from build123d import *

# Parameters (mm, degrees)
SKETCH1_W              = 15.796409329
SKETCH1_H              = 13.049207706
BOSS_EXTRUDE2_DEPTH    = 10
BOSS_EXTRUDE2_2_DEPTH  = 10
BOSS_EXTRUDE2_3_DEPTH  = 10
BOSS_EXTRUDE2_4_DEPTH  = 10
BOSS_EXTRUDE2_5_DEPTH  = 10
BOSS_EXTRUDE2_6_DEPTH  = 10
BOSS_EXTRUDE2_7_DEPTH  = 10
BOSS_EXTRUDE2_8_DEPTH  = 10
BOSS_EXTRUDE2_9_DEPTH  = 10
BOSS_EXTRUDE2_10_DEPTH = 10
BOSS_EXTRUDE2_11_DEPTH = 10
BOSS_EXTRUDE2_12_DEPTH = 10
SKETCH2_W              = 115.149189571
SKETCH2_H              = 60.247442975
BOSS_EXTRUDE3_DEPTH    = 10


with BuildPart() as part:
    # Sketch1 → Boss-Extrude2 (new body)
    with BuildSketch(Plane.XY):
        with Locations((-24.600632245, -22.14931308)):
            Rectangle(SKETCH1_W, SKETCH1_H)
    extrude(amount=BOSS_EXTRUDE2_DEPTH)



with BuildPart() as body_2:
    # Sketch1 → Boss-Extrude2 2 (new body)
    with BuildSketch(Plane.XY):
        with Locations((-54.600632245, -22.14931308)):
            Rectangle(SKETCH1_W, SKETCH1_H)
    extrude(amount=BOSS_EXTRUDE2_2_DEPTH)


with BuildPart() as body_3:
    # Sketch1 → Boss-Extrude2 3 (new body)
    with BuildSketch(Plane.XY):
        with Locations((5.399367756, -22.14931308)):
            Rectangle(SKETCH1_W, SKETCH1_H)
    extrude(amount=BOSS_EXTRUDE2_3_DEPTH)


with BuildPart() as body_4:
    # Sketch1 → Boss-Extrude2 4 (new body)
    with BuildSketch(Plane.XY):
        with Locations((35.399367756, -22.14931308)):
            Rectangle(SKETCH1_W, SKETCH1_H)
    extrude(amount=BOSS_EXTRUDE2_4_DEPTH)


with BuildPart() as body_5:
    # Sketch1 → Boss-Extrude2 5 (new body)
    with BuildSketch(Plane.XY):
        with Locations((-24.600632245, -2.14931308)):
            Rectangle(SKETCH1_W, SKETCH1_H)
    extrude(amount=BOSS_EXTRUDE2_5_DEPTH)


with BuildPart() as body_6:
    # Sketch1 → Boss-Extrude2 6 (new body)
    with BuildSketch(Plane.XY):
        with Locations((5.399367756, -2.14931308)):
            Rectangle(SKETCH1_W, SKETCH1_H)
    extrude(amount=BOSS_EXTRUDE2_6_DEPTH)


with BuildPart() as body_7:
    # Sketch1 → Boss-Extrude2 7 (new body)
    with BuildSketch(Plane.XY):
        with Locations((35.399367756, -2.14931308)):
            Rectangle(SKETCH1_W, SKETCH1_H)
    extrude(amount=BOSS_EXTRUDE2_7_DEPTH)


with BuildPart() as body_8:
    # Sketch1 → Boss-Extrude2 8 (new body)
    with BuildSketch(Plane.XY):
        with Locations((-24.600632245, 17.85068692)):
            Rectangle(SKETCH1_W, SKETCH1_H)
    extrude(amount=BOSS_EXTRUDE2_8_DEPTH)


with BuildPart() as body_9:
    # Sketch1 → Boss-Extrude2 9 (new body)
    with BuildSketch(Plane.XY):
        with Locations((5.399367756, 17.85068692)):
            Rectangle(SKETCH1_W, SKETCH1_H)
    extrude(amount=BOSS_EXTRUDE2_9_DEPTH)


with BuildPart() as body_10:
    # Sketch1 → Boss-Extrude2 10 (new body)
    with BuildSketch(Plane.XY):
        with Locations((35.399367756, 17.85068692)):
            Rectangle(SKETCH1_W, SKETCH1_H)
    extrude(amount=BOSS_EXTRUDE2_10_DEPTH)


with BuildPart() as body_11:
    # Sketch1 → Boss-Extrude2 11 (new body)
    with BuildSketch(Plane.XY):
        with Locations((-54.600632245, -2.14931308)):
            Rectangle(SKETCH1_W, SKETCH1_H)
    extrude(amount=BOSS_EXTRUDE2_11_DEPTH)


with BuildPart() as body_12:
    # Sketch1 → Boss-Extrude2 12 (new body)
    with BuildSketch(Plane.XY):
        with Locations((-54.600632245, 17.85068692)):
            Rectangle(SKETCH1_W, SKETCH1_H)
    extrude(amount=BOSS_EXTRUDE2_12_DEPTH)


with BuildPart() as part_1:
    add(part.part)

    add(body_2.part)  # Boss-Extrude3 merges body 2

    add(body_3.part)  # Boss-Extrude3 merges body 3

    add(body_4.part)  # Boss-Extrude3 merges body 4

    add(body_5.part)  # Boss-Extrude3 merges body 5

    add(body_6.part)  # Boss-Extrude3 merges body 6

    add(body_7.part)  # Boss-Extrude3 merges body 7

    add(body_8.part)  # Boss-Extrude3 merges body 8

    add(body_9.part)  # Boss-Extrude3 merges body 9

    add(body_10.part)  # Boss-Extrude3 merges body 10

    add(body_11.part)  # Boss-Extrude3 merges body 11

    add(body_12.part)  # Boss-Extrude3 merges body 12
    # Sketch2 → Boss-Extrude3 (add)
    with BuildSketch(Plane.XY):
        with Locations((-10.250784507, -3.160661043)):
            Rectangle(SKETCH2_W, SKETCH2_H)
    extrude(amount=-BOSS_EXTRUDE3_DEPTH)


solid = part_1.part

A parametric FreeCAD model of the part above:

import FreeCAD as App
import Part
import Sketcher
from FreeCAD import Vector


def add_polygon(sketch, points):
    """Adds a closed chain of lines whose ends are joined by coincident constraints."""
    first, n = sketch.GeometryCount, len(points)
    for a, b in zip(points, points[1:] + points[:1]):
        sketch.addGeometry(Part.LineSegment(App.Vector(*a, 0), App.Vector(*b, 0)), False)
    for i in range(n):
        sketch.addConstraint(Sketcher.Constraint("Coincident", first + i, 2, first + (i + 1) % n, 1))

doc = App.newDocument("Part")
body = doc.addObject("PartDesign::Body", "Body")

sketch1 = body.newObject("Sketcher::SketchObject", "Sketch")
sketch1.AttachmentSupport = (doc.getObject("XY_Plane"), [""])
sketch1.MapMode = "FlatFace"
add_polygon(sketch1, [(-32.498837, -15.624709), (-32.498837, -28.673917), (-16.702428, -28.673917), (-16.702428, -15.624709)])
sketch1.addConstraint([
    Sketcher.Constraint("Vertical", 0),
    Sketcher.Constraint("Horizontal", 1),
    Sketcher.Constraint("Vertical", 2),
    Sketcher.Constraint("Horizontal", 3),
    Sketcher.Constraint("DistanceX", 1, 1, 1, 2, 15.796409),
    Sketcher.Constraint("DistanceY", 0, 2, 0, 1, 13.049208),
    Sketcher.Constraint("DistanceY", 2, 2, -1, 1, 15.624709),
    Sketcher.Constraint("DistanceX", 0, 2, -1, 1, 32.498837),
])
pad1 = body.newObject("PartDesign::Pad", "Pad")
pad1.Profile = sketch1
pad1.Length = 10
body2 = doc.addObject("PartDesign::Body", "Body001")

sketch2 = body2.newObject("Sketcher::SketchObject", "Sketch001")
sketch2.AttachmentSupport = (doc.getObject("XY_Plane001"), [""])
sketch2.MapMode = "FlatFace"
add_polygon(sketch2, [(-62.498837, -15.624709), (-62.498837, -28.673917), (-46.702428, -28.673917), (-46.702428, -15.624709)])
sketch2.addConstraint([
    Sketcher.Constraint("Vertical", 0),
    Sketcher.Constraint("Horizontal", 1),
    Sketcher.Constraint("Vertical", 2),
    Sketcher.Constraint("Horizontal", 3),
    Sketcher.Constraint("DistanceX", 1, 1, 1, 2, 15.796409),
    Sketcher.Constraint("DistanceY", 0, 2, 0, 1, 13.049208),
    Sketcher.Constraint("DistanceY", 2, 2, -1, 1, 15.624709),
    Sketcher.Constraint("DistanceX", 0, 2, -1, 1, 62.498837),
])
pad2 = body2.newObject("PartDesign::Pad", "Pad001")
pad2.Profile = sketch2
pad2.Length = 10
body3 = doc.addObject("PartDesign::Body", "Body002")

sketch3 = body3.newObject("Sketcher::SketchObject", "Sketch002")
sketch3.AttachmentSupport = (doc.getObject("XY_Plane002"), [""])
sketch3.MapMode = "FlatFace"
add_polygon(sketch3, [(-2.498837, -15.624709), (-2.498837, -28.673917), (13.297572, -28.673917), (13.297572, -15.624709)])
sketch3.addConstraint([
    Sketcher.Constraint("Vertical", 0),
    Sketcher.Constraint("Horizontal", 1),
    Sketcher.Constraint("Vertical", 2),
    Sketcher.Constraint("Horizontal", 3),
    Sketcher.Constraint("DistanceX", 1, 1, 1, 2, 15.796409),
    Sketcher.Constraint("DistanceY", 0, 2, 0, 1, 13.049208),
    Sketcher.Constraint("DistanceY", 2, 2, -1, 1, 15.624709),
    Sketcher.Constraint("DistanceX", 0, 2, -1, 1, 2.498837),
])
pad3 = body3.newObject("PartDesign::Pad", "Pad002")
pad3.Profile = sketch3
pad3.Length = 10
body4 = doc.addObject("PartDesign::Body", "Body003")

sketch4 = body4.newObject("Sketcher::SketchObject", "Sketch003")
sketch4.AttachmentSupport = (doc.getObject("XY_Plane003"), [""])
sketch4.MapMode = "FlatFace"
add_polygon(sketch4, [(27.501163, -15.624709), (27.501163, -28.673917), (43.297572, -28.673917), (43.297572, -15.624709)])
sketch4.addConstraint([
    Sketcher.Constraint("Vertical", 0),
    Sketcher.Constraint("Horizontal", 1),
    Sketcher.Constraint("Vertical", 2),
    Sketcher.Constraint("Horizontal", 3),
    Sketcher.Constraint("DistanceX", 1, 1, 1, 2, 15.796409),
    Sketcher.Constraint("DistanceY", 0, 2, 0, 1, 13.049208),
    Sketcher.Constraint("DistanceY", 2, 2, -1, 1, 15.624709),
    Sketcher.Constraint("DistanceX", -1, 1, 0, 2, 27.501163),
])
pad4 = body4.newObject("PartDesign::Pad", "Pad003")
pad4.Profile = sketch4
pad4.Length = 10
body5 = doc.addObject("PartDesign::Body", "Body004")

sketch5 = body5.newObject("Sketcher::SketchObject", "Sketch004")
sketch5.AttachmentSupport = (doc.getObject("XY_Plane004"), [""])
sketch5.MapMode = "FlatFace"
add_polygon(sketch5, [(-32.498837, 4.375291), (-32.498837, -8.673917), (-16.702428, -8.673917), (-16.702428, 4.375291)])
sketch5.addConstraint([
    Sketcher.Constraint("Vertical", 0),
    Sketcher.Constraint("Horizontal", 1),
    Sketcher.Constraint("Vertical", 2),
    Sketcher.Constraint("Horizontal", 3),
    Sketcher.Constraint("DistanceX", 1, 1, 1, 2, 15.796409),
    Sketcher.Constraint("DistanceY", 0, 2, 0, 1, 13.049208),
    Sketcher.Constraint("DistanceY", -1, 1, 2, 2, 4.375291),
    Sketcher.Constraint("DistanceX", 0, 2, -1, 1, 32.498837),
])
pad5 = body5.newObject("PartDesign::Pad", "Pad004")
pad5.Profile = sketch5
pad5.Length = 10
body6 = doc.addObject("PartDesign::Body", "Body005")

sketch6 = body6.newObject("Sketcher::SketchObject", "Sketch005")
sketch6.AttachmentSupport = (doc.getObject("XY_Plane005"), [""])
sketch6.MapMode = "FlatFace"
add_polygon(sketch6, [(-2.498837, 4.375291), (-2.498837, -8.673917), (13.297572, -8.673917), (13.297572, 4.375291)])
sketch6.addConstraint([
    Sketcher.Constraint("Vertical", 0),
    Sketcher.Constraint("Horizontal", 1),
    Sketcher.Constraint("Vertical", 2),
    Sketcher.Constraint("Horizontal", 3),
    Sketcher.Constraint("DistanceX", 1, 1, 1, 2, 15.796409),
    Sketcher.Constraint("DistanceY", 0, 2, 0, 1, 13.049208),
    Sketcher.Constraint("DistanceY", -1, 1, 2, 2, 4.375291),
    Sketcher.Constraint("DistanceX", 0, 2, -1, 1, 2.498837),
])
pad6 = body6.newObject("PartDesign::Pad", "Pad005")
pad6.Profile = sketch6
pad6.Length = 10
body7 = doc.addObject("PartDesign::Body", "Body006")

sketch7 = body7.newObject("Sketcher::SketchObject", "Sketch006")
sketch7.AttachmentSupport = (doc.getObject("XY_Plane006"), [""])
sketch7.MapMode = "FlatFace"
add_polygon(sketch7, [(27.501163, 4.375291), (27.501163, -8.673917), (43.297572, -8.673917), (43.297572, 4.375291)])
sketch7.addConstraint([
    Sketcher.Constraint("Vertical", 0),
    Sketcher.Constraint("Horizontal", 1),
    Sketcher.Constraint("Vertical", 2),
    Sketcher.Constraint("Horizontal", 3),
    Sketcher.Constraint("DistanceX", 1, 1, 1, 2, 15.796409),
    Sketcher.Constraint("DistanceY", 0, 2, 0, 1, 13.049208),
    Sketcher.Constraint("DistanceY", -1, 1, 2, 2, 4.375291),
    Sketcher.Constraint("DistanceX", -1, 1, 0, 2, 27.501163),
])
pad7 = body7.newObject("PartDesign::Pad", "Pad006")
pad7.Profile = sketch7
pad7.Length = 10
body8 = doc.addObject("PartDesign::Body", "Body007")

sketch8 = body8.newObject("Sketcher::SketchObject", "Sketch007")
sketch8.AttachmentSupport = (doc.getObject("XY_Plane007"), [""])
sketch8.MapMode = "FlatFace"
add_polygon(sketch8, [(-32.498837, 24.375291), (-32.498837, 11.326083), (-16.702428, 11.326083), (-16.702428, 24.375291)])
sketch8.addConstraint([
    Sketcher.Constraint("Vertical", 0),
    Sketcher.Constraint("Horizontal", 1),
    Sketcher.Constraint("Vertical", 2),
    Sketcher.Constraint("Horizontal", 3),
    Sketcher.Constraint("DistanceX", 1, 1, 1, 2, 15.796409),
    Sketcher.Constraint("DistanceY", 0, 2, 0, 1, 13.049208),
    Sketcher.Constraint("DistanceY", -1, 1, 2, 2, 24.375291),
    Sketcher.Constraint("DistanceX", 0, 2, -1, 1, 32.498837),
])
pad8 = body8.newObject("PartDesign::Pad", "Pad007")
pad8.Profile = sketch8
pad8.Length = 10
body9 = doc.addObject("PartDesign::Body", "Body008")

sketch9 = body9.newObject("Sketcher::SketchObject", "Sketch008")
sketch9.AttachmentSupport = (doc.getObject("XY_Plane008"), [""])
sketch9.MapMode = "FlatFace"
add_polygon(sketch9, [(-2.498837, 24.375291), (-2.498837, 11.326083), (13.297572, 11.326083), (13.297572, 24.375291)])
sketch9.addConstraint([
    Sketcher.Constraint("Vertical", 0),
    Sketcher.Constraint("Horizontal", 1),
    Sketcher.Constraint("Vertical", 2),
    Sketcher.Constraint("Horizontal", 3),
    Sketcher.Constraint("DistanceX", 1, 1, 1, 2, 15.796409),
    Sketcher.Constraint("DistanceY", 0, 2, 0, 1, 13.049208),
    Sketcher.Constraint("DistanceY", -1, 1, 2, 2, 24.375291),
    Sketcher.Constraint("DistanceX", 0, 2, -1, 1, 2.498837),
])
pad9 = body9.newObject("PartDesign::Pad", "Pad008")
pad9.Profile = sketch9
pad9.Length = 10
body10 = doc.addObject("PartDesign::Body", "Body009")

sketch10 = body10.newObject("Sketcher::SketchObject", "Sketch009")
sketch10.AttachmentSupport = (doc.getObject("XY_Plane009"), [""])
sketch10.MapMode = "FlatFace"
add_polygon(sketch10, [(27.501163, 24.375291), (27.501163, 11.326083), (43.297572, 11.326083), (43.297572, 24.375291)])
sketch10.addConstraint([
    Sketcher.Constraint("Vertical", 0),
    Sketcher.Constraint("Horizontal", 1),
    Sketcher.Constraint("Vertical", 2),
    Sketcher.Constraint("Horizontal", 3),
    Sketcher.Constraint("DistanceX", 1, 1, 1, 2, 15.796409),
    Sketcher.Constraint("DistanceY", 0, 2, 0, 1, 13.049208),
    Sketcher.Constraint("DistanceY", -1, 1, 2, 2, 24.375291),
    Sketcher.Constraint("DistanceX", -1, 1, 0, 2, 27.501163),
])
pad10 = body10.newObject("PartDesign::Pad", "Pad009")
pad10.Profile = sketch10
pad10.Length = 10
body11 = doc.addObject("PartDesign::Body", "Body010")

sketch11 = body11.newObject("Sketcher::SketchObject", "Sketch010")
sketch11.AttachmentSupport = (doc.getObject("XY_Plane010"), [""])
sketch11.MapMode = "FlatFace"
add_polygon(sketch11, [(-62.498837, 4.375291), (-62.498837, -8.673917), (-46.702428, -8.673917), (-46.702428, 4.375291)])
sketch11.addConstraint([
    Sketcher.Constraint("Vertical", 0),
    Sketcher.Constraint("Horizontal", 1),
    Sketcher.Constraint("Vertical", 2),
    Sketcher.Constraint("Horizontal", 3),
    Sketcher.Constraint("DistanceX", 1, 1, 1, 2, 15.796409),
    Sketcher.Constraint("DistanceY", 0, 2, 0, 1, 13.049208),
    Sketcher.Constraint("DistanceY", -1, 1, 2, 2, 4.375291),
    Sketcher.Constraint("DistanceX", 0, 2, -1, 1, 62.498837),
])
pad11 = body11.newObject("PartDesign::Pad", "Pad010")
pad11.Profile = sketch11
pad11.Length = 10
body12 = doc.addObject("PartDesign::Body", "Body011")

sketch12 = body12.newObject("Sketcher::SketchObject", "Sketch011")
sketch12.AttachmentSupport = (doc.getObject("XY_Plane011"), [""])
sketch12.MapMode = "FlatFace"
add_polygon(sketch12, [(-62.498837, 24.375291), (-62.498837, 11.326083), (-46.702428, 11.326083), (-46.702428, 24.375291)])
sketch12.addConstraint([
    Sketcher.Constraint("Vertical", 0),
    Sketcher.Constraint("Horizontal", 1),
    Sketcher.Constraint("Vertical", 2),
    Sketcher.Constraint("Horizontal", 3),
    Sketcher.Constraint("DistanceX", 1, 1, 1, 2, 15.796409),
    Sketcher.Constraint("DistanceY", 0, 2, 0, 1, 13.049208),
    Sketcher.Constraint("DistanceY", -1, 1, 2, 2, 24.375291),
    Sketcher.Constraint("DistanceX", 0, 2, -1, 1, 62.498837),
])
pad12 = body12.newObject("PartDesign::Pad", "Pad011")
pad12.Profile = sketch12
pad12.Length = 10
body.AllowCompound = True
doc.recompute()

boolean = body.newObject("PartDesign::Boolean", "Boolean")
boolean.Type = "Fuse"
boolean.addObjects([body2])
doc.recompute()

boolean2 = body.newObject("PartDesign::Boolean", "Boolean001")
boolean2.Type = "Fuse"
boolean2.addObjects([body3])
doc.recompute()

boolean3 = body.newObject("PartDesign::Boolean", "Boolean002")
boolean3.Type = "Fuse"
boolean3.addObjects([body4])
doc.recompute()

boolean4 = body.newObject("PartDesign::Boolean", "Boolean003")
boolean4.Type = "Fuse"
boolean4.addObjects([body5])
doc.recompute()

boolean5 = body.newObject("PartDesign::Boolean", "Boolean004")
boolean5.Type = "Fuse"
boolean5.addObjects([body6])
doc.recompute()

boolean6 = body.newObject("PartDesign::Boolean", "Boolean005")
boolean6.Type = "Fuse"
boolean6.addObjects([body7])
doc.recompute()

boolean7 = body.newObject("PartDesign::Boolean", "Boolean006")
boolean7.Type = "Fuse"
boolean7.addObjects([body8])
doc.recompute()

boolean8 = body.newObject("PartDesign::Boolean", "Boolean007")
boolean8.Type = "Fuse"
boolean8.addObjects([body9])
doc.recompute()

boolean9 = body.newObject("PartDesign::Boolean", "Boolean008")
boolean9.Type = "Fuse"
boolean9.addObjects([body10])
doc.recompute()

boolean10 = body.newObject("PartDesign::Boolean", "Boolean009")
boolean10.Type = "Fuse"
boolean10.addObjects([body11])
doc.recompute()

boolean11 = body.newObject("PartDesign::Boolean", "Boolean010")
boolean11.Type = "Fuse"
boolean11.addObjects([body12])

sketch13 = body.newObject("Sketcher::SketchObject", "Sketch012")
sketch13.AttachmentSupport = (doc.getObject("XY_Plane"), [""])
sketch13.MapMode = "FlatFace"
add_polygon(sketch13, [(-67.825379, 26.96306), (-67.825379, -33.284383), (47.32381, -33.284383), (47.32381, 26.96306)])
sketch13.addConstraint([
    Sketcher.Constraint("Vertical", 0),
    Sketcher.Constraint("Horizontal", 1),
    Sketcher.Constraint("Vertical", 2),
    Sketcher.Constraint("Horizontal", 3),
    Sketcher.Constraint("DistanceX", 1, 1, 1, 2, 115.14919),
    Sketcher.Constraint("DistanceY", 0, 2, 0, 1, 60.247443),
    Sketcher.Constraint("DistanceX", 0, 2, -1, 1, 67.825379),
    Sketcher.Constraint("DistanceY", -1, 1, 2, 2, 26.96306),
])
pad13 = body.newObject("PartDesign::Pad", "Pad012")
pad13.Profile = sketch13
pad13.Length = 10
pad13.Reversed = True

doc.recompute()
